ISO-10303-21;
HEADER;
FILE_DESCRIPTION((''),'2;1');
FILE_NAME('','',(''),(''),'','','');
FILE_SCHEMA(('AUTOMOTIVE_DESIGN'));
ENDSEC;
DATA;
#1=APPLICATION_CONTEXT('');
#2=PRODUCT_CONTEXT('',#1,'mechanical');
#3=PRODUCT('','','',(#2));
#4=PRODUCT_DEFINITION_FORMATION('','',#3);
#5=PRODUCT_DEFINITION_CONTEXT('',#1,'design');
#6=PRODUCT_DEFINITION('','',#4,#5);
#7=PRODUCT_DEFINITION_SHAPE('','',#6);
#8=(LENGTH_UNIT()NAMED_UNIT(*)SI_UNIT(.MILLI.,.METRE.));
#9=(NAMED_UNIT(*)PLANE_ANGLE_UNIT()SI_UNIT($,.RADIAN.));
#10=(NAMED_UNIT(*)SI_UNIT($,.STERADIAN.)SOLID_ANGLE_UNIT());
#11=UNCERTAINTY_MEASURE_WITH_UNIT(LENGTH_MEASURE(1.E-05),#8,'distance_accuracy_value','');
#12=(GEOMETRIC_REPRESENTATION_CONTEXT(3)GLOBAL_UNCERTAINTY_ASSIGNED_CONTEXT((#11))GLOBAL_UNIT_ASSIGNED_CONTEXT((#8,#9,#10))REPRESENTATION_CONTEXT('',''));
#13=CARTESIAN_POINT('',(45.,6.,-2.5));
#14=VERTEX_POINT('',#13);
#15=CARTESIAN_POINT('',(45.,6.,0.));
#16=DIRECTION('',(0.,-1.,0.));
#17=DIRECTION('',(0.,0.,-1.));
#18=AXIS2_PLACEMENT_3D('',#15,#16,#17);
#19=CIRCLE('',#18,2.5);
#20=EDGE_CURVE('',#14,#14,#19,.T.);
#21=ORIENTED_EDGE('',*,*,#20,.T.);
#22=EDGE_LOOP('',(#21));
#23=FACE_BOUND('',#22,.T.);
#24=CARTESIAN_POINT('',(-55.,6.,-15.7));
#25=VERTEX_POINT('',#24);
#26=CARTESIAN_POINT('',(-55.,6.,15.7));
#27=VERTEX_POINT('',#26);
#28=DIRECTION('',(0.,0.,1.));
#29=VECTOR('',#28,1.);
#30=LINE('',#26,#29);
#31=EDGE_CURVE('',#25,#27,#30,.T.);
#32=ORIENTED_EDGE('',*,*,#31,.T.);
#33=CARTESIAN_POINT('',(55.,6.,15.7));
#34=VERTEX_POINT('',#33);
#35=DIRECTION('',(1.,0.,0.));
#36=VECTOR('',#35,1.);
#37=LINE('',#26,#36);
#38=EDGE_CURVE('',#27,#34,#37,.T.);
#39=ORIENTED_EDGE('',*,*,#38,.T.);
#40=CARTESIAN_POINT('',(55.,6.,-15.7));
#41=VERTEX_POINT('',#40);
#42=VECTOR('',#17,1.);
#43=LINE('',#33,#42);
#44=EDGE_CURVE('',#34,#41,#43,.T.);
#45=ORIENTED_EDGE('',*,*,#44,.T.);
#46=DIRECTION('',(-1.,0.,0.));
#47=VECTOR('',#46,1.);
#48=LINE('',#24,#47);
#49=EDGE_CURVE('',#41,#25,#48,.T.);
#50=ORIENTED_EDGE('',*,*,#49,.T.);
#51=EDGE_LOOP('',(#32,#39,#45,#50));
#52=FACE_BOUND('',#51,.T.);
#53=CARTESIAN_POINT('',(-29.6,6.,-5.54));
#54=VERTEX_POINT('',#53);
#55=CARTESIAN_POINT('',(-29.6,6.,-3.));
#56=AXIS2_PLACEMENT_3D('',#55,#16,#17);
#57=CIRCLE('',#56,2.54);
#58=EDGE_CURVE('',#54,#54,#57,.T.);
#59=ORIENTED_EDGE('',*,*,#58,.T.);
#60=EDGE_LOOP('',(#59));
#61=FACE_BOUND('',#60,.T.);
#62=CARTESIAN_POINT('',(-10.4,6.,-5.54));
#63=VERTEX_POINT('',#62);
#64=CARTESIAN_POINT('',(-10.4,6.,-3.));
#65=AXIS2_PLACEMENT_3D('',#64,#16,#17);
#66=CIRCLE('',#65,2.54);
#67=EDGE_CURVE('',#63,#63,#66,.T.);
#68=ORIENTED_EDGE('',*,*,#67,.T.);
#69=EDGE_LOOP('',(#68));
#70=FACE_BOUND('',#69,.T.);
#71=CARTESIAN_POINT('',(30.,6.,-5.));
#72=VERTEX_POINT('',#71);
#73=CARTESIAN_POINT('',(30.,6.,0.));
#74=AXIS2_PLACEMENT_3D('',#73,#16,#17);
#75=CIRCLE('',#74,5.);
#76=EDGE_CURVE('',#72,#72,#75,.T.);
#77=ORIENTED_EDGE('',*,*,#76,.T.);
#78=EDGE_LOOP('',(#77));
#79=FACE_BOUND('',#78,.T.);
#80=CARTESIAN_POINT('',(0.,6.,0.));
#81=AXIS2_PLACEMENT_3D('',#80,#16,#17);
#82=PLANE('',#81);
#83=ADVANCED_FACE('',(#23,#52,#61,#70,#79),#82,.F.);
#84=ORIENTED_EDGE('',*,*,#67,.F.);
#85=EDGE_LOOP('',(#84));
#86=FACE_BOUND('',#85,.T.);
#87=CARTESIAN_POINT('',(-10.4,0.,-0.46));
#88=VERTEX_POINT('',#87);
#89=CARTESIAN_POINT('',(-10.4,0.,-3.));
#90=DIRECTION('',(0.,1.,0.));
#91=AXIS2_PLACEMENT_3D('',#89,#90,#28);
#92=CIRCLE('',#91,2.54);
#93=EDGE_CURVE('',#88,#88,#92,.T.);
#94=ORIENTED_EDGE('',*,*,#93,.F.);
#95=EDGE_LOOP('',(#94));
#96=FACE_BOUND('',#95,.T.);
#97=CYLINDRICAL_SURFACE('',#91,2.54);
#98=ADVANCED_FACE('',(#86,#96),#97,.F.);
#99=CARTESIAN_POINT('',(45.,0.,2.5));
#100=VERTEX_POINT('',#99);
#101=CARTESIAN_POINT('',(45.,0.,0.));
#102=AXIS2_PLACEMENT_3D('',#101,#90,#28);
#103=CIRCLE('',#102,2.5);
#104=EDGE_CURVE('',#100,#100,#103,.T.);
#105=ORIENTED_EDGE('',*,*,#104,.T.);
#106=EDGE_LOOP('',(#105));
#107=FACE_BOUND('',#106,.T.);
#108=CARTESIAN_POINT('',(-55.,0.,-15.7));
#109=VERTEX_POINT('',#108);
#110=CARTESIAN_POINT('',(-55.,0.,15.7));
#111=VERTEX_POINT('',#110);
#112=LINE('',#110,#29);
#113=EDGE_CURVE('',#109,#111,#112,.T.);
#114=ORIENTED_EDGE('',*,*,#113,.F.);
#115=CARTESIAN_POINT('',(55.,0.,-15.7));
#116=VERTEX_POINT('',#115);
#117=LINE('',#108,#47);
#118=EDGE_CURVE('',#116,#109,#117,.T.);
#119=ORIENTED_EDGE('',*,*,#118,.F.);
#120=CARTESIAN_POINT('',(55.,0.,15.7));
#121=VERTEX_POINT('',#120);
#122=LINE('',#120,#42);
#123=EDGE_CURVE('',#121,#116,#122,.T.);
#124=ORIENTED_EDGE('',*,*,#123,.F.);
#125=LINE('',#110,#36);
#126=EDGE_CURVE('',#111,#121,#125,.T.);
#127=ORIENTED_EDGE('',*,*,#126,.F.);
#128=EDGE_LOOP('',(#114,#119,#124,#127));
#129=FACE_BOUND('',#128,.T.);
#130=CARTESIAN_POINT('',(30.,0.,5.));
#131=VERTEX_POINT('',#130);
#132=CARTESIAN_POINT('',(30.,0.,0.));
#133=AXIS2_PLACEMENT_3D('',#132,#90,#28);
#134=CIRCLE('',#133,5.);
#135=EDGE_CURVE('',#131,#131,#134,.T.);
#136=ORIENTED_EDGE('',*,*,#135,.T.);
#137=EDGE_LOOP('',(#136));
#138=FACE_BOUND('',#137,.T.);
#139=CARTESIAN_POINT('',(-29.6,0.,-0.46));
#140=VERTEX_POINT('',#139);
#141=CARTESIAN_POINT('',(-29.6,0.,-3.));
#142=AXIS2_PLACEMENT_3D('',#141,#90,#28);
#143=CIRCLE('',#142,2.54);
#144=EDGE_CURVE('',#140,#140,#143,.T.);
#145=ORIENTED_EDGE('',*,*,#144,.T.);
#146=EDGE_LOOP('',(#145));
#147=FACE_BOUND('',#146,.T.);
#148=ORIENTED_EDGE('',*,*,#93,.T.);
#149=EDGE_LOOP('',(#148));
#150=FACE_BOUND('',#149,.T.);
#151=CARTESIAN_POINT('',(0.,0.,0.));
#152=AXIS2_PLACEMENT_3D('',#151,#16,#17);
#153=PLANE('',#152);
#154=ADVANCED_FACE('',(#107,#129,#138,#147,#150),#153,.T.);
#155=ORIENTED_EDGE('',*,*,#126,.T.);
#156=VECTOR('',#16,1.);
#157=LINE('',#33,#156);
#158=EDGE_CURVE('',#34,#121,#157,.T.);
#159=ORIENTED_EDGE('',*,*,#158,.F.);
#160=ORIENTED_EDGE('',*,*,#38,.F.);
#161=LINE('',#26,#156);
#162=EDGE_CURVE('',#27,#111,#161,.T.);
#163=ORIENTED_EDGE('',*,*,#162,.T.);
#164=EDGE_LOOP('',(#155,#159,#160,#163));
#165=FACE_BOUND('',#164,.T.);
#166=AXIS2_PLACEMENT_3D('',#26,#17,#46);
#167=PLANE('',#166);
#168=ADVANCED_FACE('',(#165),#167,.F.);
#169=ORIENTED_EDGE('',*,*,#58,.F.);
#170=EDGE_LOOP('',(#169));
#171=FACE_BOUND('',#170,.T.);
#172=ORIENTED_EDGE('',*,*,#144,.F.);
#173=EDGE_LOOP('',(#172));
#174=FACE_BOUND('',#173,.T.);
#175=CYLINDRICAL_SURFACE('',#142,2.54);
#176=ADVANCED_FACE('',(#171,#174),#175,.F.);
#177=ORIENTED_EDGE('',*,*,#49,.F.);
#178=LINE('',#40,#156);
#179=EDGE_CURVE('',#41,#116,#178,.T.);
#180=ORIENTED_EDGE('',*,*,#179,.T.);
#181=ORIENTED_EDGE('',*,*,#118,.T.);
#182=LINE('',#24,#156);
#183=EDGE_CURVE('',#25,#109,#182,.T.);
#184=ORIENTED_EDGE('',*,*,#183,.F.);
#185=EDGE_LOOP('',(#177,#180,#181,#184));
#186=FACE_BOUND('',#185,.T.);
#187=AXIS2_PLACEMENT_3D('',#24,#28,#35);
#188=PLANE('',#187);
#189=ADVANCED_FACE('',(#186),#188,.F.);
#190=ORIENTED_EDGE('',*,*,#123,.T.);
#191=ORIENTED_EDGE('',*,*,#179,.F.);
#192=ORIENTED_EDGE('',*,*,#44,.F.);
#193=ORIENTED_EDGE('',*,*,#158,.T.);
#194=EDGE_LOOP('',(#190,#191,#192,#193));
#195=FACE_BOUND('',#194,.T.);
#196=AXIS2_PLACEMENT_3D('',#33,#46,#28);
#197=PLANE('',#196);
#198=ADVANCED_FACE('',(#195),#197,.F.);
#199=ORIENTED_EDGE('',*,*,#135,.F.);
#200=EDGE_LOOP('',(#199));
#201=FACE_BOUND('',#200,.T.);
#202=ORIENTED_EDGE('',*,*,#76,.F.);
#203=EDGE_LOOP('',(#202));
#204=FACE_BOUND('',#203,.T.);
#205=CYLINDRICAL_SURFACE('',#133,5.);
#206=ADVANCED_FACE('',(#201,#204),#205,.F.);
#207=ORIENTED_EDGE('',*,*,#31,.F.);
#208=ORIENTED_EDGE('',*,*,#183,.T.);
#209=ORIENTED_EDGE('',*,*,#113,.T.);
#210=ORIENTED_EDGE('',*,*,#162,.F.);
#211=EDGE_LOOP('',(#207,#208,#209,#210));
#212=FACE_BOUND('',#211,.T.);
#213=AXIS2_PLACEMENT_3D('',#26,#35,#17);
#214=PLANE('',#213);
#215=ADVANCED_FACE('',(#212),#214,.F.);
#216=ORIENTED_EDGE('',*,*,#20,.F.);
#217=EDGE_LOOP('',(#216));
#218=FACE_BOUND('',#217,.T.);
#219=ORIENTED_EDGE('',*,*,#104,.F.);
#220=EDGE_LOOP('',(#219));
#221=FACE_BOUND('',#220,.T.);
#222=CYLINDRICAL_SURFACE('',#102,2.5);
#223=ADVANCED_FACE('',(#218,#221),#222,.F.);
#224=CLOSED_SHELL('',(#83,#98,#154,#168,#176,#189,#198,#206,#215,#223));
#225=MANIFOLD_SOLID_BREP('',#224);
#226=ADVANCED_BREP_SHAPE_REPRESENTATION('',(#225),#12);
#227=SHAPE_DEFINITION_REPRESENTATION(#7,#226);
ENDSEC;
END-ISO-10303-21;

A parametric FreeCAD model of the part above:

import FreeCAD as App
import Part
import Sketcher
from FreeCAD import Vector


def add_polygon(sketch, points):
    """Adds a closed chain of lines whose ends are joined by coincident constraints."""
    first, n = sketch.GeometryCount, len(points)
    for a, b in zip(points, points[1:] + points[:1]):
        sketch.addGeometry(Part.LineSegment(App.Vector(*a, 0), App.Vector(*b, 0)), False)
    for i in range(n):
        sketch.addConstraint(Sketcher.Constraint("Coincident", first + i, 2, first + (i + 1) % n, 1))

doc = App.newDocument("Part")
body = doc.addObject("PartDesign::Body", "Body")

# Sketch on XZ plane
sketch1 = body.newObject("Sketcher::SketchObject", "Sketch")
sketch1.AttachmentSupport = (doc.getObject("XZ_Plane"), [""])
sketch1.MapMode = "FlatFace"
add_polygon(sketch1, [(-55, -16), (-55, 16), (55, 16), (55, -16)])  # lines 0-3
sketch1.addConstraint([
    Sketcher.Constraint("Vertical", 0),
    Sketcher.Constraint("Horizontal", 1),
    Sketcher.Constraint("Vertical", 2),
    Sketcher.Constraint("Horizontal", 3),
    Sketcher.Constraint("Symmetric", 0, 2, 2, 2, -1, 1),
    Sketcher.Constraint("DistanceX", 1, 1, 1, 2, 110.0),
    Sketcher.Constraint("DistanceY", 0, 1, 0, 2, 31.4),
])
pad1 = body.newObject("PartDesign::Pad", "Pad")
pad1.Profile = sketch1
pad1.Length = 6
pad1.Reversed = True

# Sketch on XZ plane
sketch2 = body.newObject("Sketcher::SketchObject", "Sketch001")
sketch2.AttachmentSupport = (doc.getObject("XZ_Plane"), [""])
sketch2.MapMode = "FlatFace"
sketch2.AttachmentOffset = App.Placement(Vector(0, 0, -6), App.Rotation())
sketch2.addGeometry([
    Part.Circle(Vector(-10.4, -3, 0), Vector(0, 0, 1), 2.5),
    Part.Circle(Vector(-29.6, -3, 0), Vector(0, 0, 1), 2.5),
    Part.Circle(Vector(30, 0, 0), Vector(0, 0, 1), 5),
    Part.Circle(Vector(45, 0, 0), Vector(0, 0, 1), 2.5),
], False)
sketch2.addConstraint([
    Sketcher.Constraint("Equal", 0, 1),
    Sketcher.Constraint("PointOnObject", 2, 3, -1),
    Sketcher.Constraint("PointOnObject", 3, 3, -1),
    Sketcher.Constraint("Horizontal", 0, 3, 1, 3),
    Sketcher.Constraint("Diameter", 2, 10.0),
    Sketcher.Constraint("Diameter", 3, 5.0),
    Sketcher.Constraint("Diameter", 0, 5.08),
    Sketcher.Constraint("DistanceY", 0, 3, -1, 1, 3.0),
    Sketcher.Constraint("DistanceX", -1, 1, 2, 3, 30.0),
    Sketcher.Constraint("DistanceX", -1, 1, 3, 3, 45.0),
    Sketcher.Constraint("DistanceX", 0, 3, -1, 1, 10.4),
    Sketcher.Constraint("DistanceX", 1, 3, -1, 1, 29.6),
])
pocket1 = body.newObject("PartDesign::Pocket", "Pocket")
pocket1.Profile = sketch2
pocket1.Type = "ThroughAll"
pocket1.Midplane = True

doc.recompute()
